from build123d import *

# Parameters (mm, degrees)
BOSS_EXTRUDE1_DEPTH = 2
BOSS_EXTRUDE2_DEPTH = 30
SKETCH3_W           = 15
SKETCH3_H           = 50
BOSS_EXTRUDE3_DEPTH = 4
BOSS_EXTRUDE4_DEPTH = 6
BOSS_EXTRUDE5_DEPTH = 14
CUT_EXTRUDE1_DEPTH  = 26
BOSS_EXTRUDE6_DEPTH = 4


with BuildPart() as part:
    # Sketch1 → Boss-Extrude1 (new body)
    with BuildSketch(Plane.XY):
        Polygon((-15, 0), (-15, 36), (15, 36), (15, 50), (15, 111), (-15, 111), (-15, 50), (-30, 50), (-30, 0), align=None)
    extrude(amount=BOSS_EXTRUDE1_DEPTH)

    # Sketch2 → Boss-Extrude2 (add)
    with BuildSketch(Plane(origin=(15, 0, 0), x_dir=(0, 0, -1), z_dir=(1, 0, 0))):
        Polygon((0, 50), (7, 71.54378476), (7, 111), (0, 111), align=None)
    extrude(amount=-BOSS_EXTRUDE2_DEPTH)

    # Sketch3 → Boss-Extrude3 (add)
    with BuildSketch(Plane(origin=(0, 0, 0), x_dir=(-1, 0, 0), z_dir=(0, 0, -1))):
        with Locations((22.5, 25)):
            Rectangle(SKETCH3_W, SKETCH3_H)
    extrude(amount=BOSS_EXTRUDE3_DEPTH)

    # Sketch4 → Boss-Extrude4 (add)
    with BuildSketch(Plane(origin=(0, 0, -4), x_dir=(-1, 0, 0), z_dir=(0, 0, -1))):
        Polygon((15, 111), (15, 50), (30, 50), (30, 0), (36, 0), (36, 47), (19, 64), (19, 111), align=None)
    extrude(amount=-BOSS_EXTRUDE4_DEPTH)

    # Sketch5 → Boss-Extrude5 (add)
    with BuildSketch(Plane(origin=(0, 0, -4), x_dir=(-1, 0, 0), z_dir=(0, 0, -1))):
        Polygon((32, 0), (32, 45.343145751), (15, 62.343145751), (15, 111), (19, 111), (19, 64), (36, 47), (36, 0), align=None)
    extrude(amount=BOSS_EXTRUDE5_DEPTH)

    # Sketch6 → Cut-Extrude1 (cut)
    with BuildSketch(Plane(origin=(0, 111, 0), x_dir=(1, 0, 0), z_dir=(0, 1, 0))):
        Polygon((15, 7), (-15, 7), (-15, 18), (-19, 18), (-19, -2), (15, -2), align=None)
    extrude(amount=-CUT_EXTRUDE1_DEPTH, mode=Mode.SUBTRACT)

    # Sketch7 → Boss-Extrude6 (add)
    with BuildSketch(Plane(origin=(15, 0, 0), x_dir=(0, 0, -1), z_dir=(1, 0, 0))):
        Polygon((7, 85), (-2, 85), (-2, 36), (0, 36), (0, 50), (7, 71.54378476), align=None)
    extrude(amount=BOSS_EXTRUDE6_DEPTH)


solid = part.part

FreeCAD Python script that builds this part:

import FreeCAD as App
import Part
import Sketcher
Q = App.Units.Quantity

doc = App.newDocument("Part")
body = doc.addObject("PartDesign::Body", "Body")

# Sketch on XY plane
sketch1 = doc.addObject("Sketcher::SketchObject", "Sketch")
body.addObject(sketch1)
sketch1.AttachmentSupport = (doc.XY_Plane, [""])
sketch1.MapMode = "FlatFace"
sketch1.addGeometry([
    Part.LineSegment(App.Vector(-15, 0, 0), App.Vector(-15, 36, 0)),  # 0
    Part.LineSegment(App.Vector(-15, 36, 0), App.Vector(15, 36, 0)),  # 1
    Part.LineSegment(App.Vector(15, 36, 0), App.Vector(15, 111, 0)),  # 2
    Part.LineSegment(App.Vector(15, 111, 0), App.Vector(-15, 111, 0)),  # 3
    Part.LineSegment(App.Vector(-15, 111, 0), App.Vector(-15, 50, 0)),  # 4
    Part.LineSegment(App.Vector(-15, 50, 0), App.Vector(-30, 50, 0)),  # 5
    Part.LineSegment(App.Vector(-30, 50, 0), App.Vector(-30, 0, 0)),  # 6
    Part.LineSegment(App.Vector(-30, 0, 0), App.Vector(-15, 0, 0)),  # 7
], False)
sketch1.addConstraint([
    Sketcher.Constraint("Coincident", 0, 2, 1, 1),
    Sketcher.Constraint("Coincident", 1, 2, 2, 1),
    Sketcher.Constraint("Coincident", 2, 2, 3, 1),
    Sketcher.Constraint("Coincident", 3, 2, 4, 1),
    Sketcher.Constraint("Coincident", 4, 2, 5, 1),
    Sketcher.Constraint("Coincident", 5, 2, 6, 1),
    Sketcher.Constraint("Coincident", 6, 2, 7, 1),
    Sketcher.Constraint("Coincident", 7, 2, 0, 1),
    Sketcher.Constraint("Vertical", 0),
    Sketcher.Constraint("Horizontal", 1),
    Sketcher.Constraint("Vertical", 2),
    Sketcher.Constraint("Horizontal", 3),
    Sketcher.Constraint("Vertical", 4),
    Sketcher.Constraint("Horizontal", 5),
    Sketcher.Constraint("Vertical", 6),
    Sketcher.Constraint("Horizontal", 7),
    Sketcher.Constraint("PointOnObject", 6, 2, -1),
    Sketcher.Constraint("Vertical", 0, 2, 3, 2),
    Sketcher.Constraint("DistanceX", 1, 1, 1, 2, Q("30 mm")),
    Sketcher.Constraint("DistanceX", 5, 2, 5, 1, Q("15 mm")),
    Sketcher.Constraint("DistanceY", 0, 1, 0, 2, Q("36 mm")),
    Sketcher.Constraint("DistanceY", 2, 1, 2, 2, Q("75 mm")),
    Sketcher.Constraint("DistanceY", 4, 2, 4, 1, Q("61 mm")),
    Sketcher.Constraint("DistanceX", 0, 2, -1, 1, Q("15 mm")),
])
pad1 = doc.addObject("PartDesign::Pad", "Pad")
body.addObject(pad1)
pad1.Profile = sketch1
pad1.Length = 2

# Sketch on YZ plane
sketch2 = doc.addObject("Sketcher::SketchObject", "Sketch001")
body.addObject(sketch2)
sketch2.AttachmentSupport = (doc.YZ_Plane, [""])
sketch2.MapMode = "FlatFace"
sketch2.AttachmentOffset = App.Placement(App.Vector(0, 0, 15), App.Rotation())
sketch2.addGeometry([
    Part.LineSegment(App.Vector(50, 0, 0), App.Vector(71.543785, -7, 0)),
    Part.LineSegment(App.Vector(71.543785, -7, 0), App.Vector(111, -7, 0)),
    Part.LineSegment(App.Vector(111, -7, 0), App.Vector(111, 0, 0)),
    Part.LineSegment(App.Vector(111, 0, 0), App.Vector(50, 0, 0)),
], False)
sketch2.addConstraint([
    Sketcher.Constraint("Coincident", 0, 2, 1, 1),
    Sketcher.Constraint("Coincident", 1, 2, 2, 1),
    Sketcher.Constraint("Coincident", 2, 2, 3, 1),
    Sketcher.Constraint("Coincident", 3, 2, 0, 1),
    Sketcher.Constraint("Horizontal", 1),
    Sketcher.Constraint("Vertical", 2),
    Sketcher.Constraint("Horizontal", 3),
    Sketcher.Constraint("PointOnObject", 2, 2, -1),
    Sketcher.Constraint("DistanceX", 3, 2, 3, 1, Q("61 mm")),
    Sketcher.Constraint("DistanceY", 2, 1, 2, 2, Q("7 mm")),
    Sketcher.Constraint("Angle", 0, Q("-18 deg")),
    Sketcher.Constraint("DistanceX", -1, 1, 1, 2, Q("111 mm")),
])
pad2 = doc.addObject("PartDesign::Pad", "Pad001")
body.addObject(pad2)
pad2.Profile = sketch2
pad2.Length = 30
pad2.Reversed = True

# Sketch on XY plane
sketch3 = doc.addObject("Sketcher::SketchObject", "Sketch002")
body.addObject(sketch3)
sketch3.AttachmentSupport = (doc.XY_Plane, [""])
sketch3.MapMode = "FlatFace"
sketch3.addGeometry([
    Part.LineSegment(App.Vector(-15, 50, 0), App.Vector(-15, 0, 0)),
    Part.LineSegment(App.Vector(-15, 0, 0), App.Vector(-30, 0, 0)),
    Part.LineSegment(App.Vector(-30, 0, 0), App.Vector(-30, 50, 0)),
    Part.LineSegment(App.Vector(-30, 50, 0), App.Vector(-15, 50, 0)),
], False)
sketch3.addConstraint([
    Sketcher.Constraint("Coincident", 0, 2, 1, 1),
    Sketcher.Constraint("Coincident", 1, 2, 2, 1),
    Sketcher.Constraint("Coincident", 2, 2, 3, 1),
    Sketcher.Constraint("Coincident", 3, 2, 0, 1),
    Sketcher.Constraint("Vertical", 0),
    Sketcher.Constraint("Horizontal", 1),
    Sketcher.Constraint("Vertical", 2),
    Sketcher.Constraint("Horizontal", 3),
    Sketcher.Constraint("PointOnObject", 0, 2, -1),
    Sketcher.Constraint("DistanceX", 1, 2, 1, 1, Q("15 mm")),
    Sketcher.Constraint("DistanceY", 0, 2, 0, 1, Q("50 mm")),
    Sketcher.Constraint("DistanceX", 0, 2, -1, 1, Q("15 mm")),
])
pad3 = doc.addObject("PartDesign::Pad", "Pad002")
body.addObject(pad3)
pad3.Profile = sketch3
pad3.Length = 4
pad3.Reversed = True

# Sketch on XY plane
sketch4 = doc.addObject("Sketcher::SketchObject", "Sketch003")
body.addObject(sketch4)
sketch4.AttachmentSupport = (doc.XY_Plane, [""])
sketch4.MapMode = "FlatFace"
sketch4.AttachmentOffset = App.Placement(App.Vector(0, 0, -4), App.Rotation())
sketch4.addGeometry([
    Part.LineSegment(App.Vector(-15, 111, 0), App.Vector(-15, 50, 0)),  # 0
    Part.LineSegment(App.Vector(-15, 50, 0), App.Vector(-30, 50, 0)),  # 1
    Part.LineSegment(App.Vector(-30, 50, 0), App.Vector(-30, 0, 0)),  # 2
    Part.LineSegment(App.Vector(-30, 0, 0), App.Vector(-36, 0, 0)),  # 3
    Part.LineSegment(App.Vector(-36, 0, 0), App.Vector(-36, 47, 0)),  # 4
    Part.LineSegment(App.Vector(-36, 47, 0), App.Vector(-19, 64, 0)),  # 5
    Part.LineSegment(App.Vector(-19, 64, 0), App.Vector(-19, 111, 0)),  # 6
    Part.LineSegment(App.Vector(-19, 111, 0), App.Vector(-15, 111, 0)),  # 7
], False)
sketch4.addConstraint([
    Sketcher.Constraint("Coincident", 0, 2, 1, 1),
    Sketcher.Constraint("Coincident", 1, 2, 2, 1),
    Sketcher.Constraint("Coincident", 2, 2, 3, 1),
    Sketcher.Constraint("Coincident", 3, 2, 4, 1),
    Sketcher.Constraint("Coincident", 4, 2, 5, 1),
    Sketcher.Constraint("Coincident", 5, 2, 6, 1),
    Sketcher.Constraint("Coincident", 6, 2, 7, 1),
    Sketcher.Constraint("Coincident", 7, 2, 0, 1),
    Sketcher.Constraint("Vertical", 0),
    Sketcher.Constraint("Horizontal", 1),
    Sketcher.Constraint("Vertical", 2),
    Sketcher.Constraint("Horizontal", 3),
    Sketcher.Constraint("Vertical", 4),
    Sketcher.Constraint("Vertical", 6),
    Sketcher.Constraint("Horizontal", 7),
    Sketcher.Constraint("PointOnObject", 2, 2, -1),
    Sketcher.Constraint("Equal", 4, 6),
    Sketcher.Constraint("DistanceX", 1, 2, 1, 1, Q("15 mm")),
    Sketcher.Constraint("DistanceX", 3, 2, 3, 1, Q("6 mm")),
    Sketcher.Constraint("DistanceX", 7, 1, 7, 2, Q("4 mm")),
    Sketcher.Constraint("DistanceY", 0, 2, 0, 1, Q("61 mm")),
    Sketcher.Constraint("DistanceY", 2, 2, 2, 1, Q("50 mm")),
    Sketcher.Constraint("DistanceY", 4, 1, 4, 2, Q("47 mm")),
    Sketcher.Constraint("DistanceX", 0, 2, -1, 1, Q("15 mm")),
])
pad4 = doc.addObject("PartDesign::Pad", "Pad003")
body.addObject(pad4)
pad4.Profile = sketch4
pad4.Length = 6

# Sketch on XY plane
sketch5 = doc.addObject("Sketcher::SketchObject", "Sketch004")
body.addObject(sketch5)
sketch5.AttachmentSupport = (doc.XY_Plane, [""])
sketch5.MapMode = "FlatFace"
sketch5.AttachmentOffset = App.Placement(App.Vector(0, 0, -4), App.Rotation())
sketch5.addGeometry([
    Part.LineSegment(App.Vector(-32, 45.343146, 0), App.Vector(-32, 0, 0)),  # 0
    Part.LineSegment(App.Vector(-32, 0, 0), App.Vector(-36, 0, 0)),  # 1
    Part.LineSegment(App.Vector(-36, 0, 0), App.Vector(-36, 47, 0)),  # 2
    Part.LineSegment(App.Vector(-36, 47, 0), App.Vector(-19, 64, 0)),  # 3
    Part.LineSegment(App.Vector(-19, 64, 0), App.Vector(-19, 111, 0)),  # 4
    Part.LineSegment(App.Vector(-19, 111, 0), App.Vector(-15, 111, 0)),  # 5
    Part.LineSegment(App.Vector(-15, 111, 0), App.Vector(-15, 62.343146, 0)),  # 6
    Part.LineSegment(App.Vector(-15, 62.343146, 0), App.Vector(-32, 45.343146, 0)),  # 7
], False)
sketch5.addConstraint([
    Sketcher.Constraint("Coincident", 0, 2, 1, 1),
    Sketcher.Constraint("Coincident", 1, 2, 2, 1),
    Sketcher.Constraint("Coincident", 2, 2, 3, 1),
    Sketcher.Constraint("Coincident", 3, 2, 4, 1),
    Sketcher.Constraint("Coincident", 4, 2, 5, 1),
    Sketcher.Constraint("Coincident", 5, 2, 6, 1),
    Sketcher.Constraint("Coincident", 6, 2, 7, 1),
    Sketcher.Constraint("Coincident", 7, 2, 0, 1),
    Sketcher.Constraint("Vertical", 0),
    Sketcher.Constraint("Horizontal", 1),
    Sketcher.Constraint("Vertical", 2),
    Sketcher.Constraint("Vertical", 4),
    Sketcher.Constraint("Horizontal", 5),
    Sketcher.Constraint("Vertical", 6),
    Sketcher.Constraint("PointOnObject", 0, 2, -1),
    Sketcher.Constraint("Parallel", 3, 7),
    Sketcher.Constraint("Equal", 1, 5),
    Sketcher.Constraint("Equal", 2, 4),
    Sketcher.Constraint("DistanceX", 1, 2, 1, 1, Q("4 mm")),
    Sketcher.Constraint("DistanceY", 2, 1, 2, 2, Q("47 mm")),
    Sketcher.Constraint("Angle", 3, Q("45 deg")),
    Sketcher.Constraint("DistanceX", 0, 2, -1, 1, Q("32 mm")),
    Sketcher.Constraint("DistanceX", 3, 2, -1, 1, Q("19 mm")),
    Sketcher.Constraint("DistanceY", 0, 2, 0, 1, Q("45.343146 mm")),
])
pad5 = doc.addObject("PartDesign::Pad", "Pad004")
body.addObject(pad5)
pad5.Profile = sketch5
pad5.Length = 14
pad5.Reversed = True

# Sketch on XZ plane
sketch6 = doc.addObject("Sketcher::SketchObject", "Sketch005")
body.addObject(sketch6)
sketch6.AttachmentSupport = (doc.XZ_Plane, [""])
sketch6.MapMode = "FlatFace"
sketch6.AttachmentOffset = App.Placement(App.Vector(0, 0, -111), App.Rotation())
sketch6.addGeometry([
    Part.LineSegment(App.Vector(15, -7, 0), App.Vector(-15, -7, 0)),  # 0
    Part.LineSegment(App.Vector(-15, -7, 0), App.Vector(-15, -18, 0)),  # 1
    Part.LineSegment(App.Vector(-15, -18, 0), App.Vector(-19, -18, 0)),  # 2
    Part.LineSegment(App.Vector(-19, -18, 0), App.Vector(-19, 2, 0)),  # 3
    Part.LineSegment(App.Vector(-19, 2, 0), App.Vector(15, 2, 0)),  # 4
    Part.LineSegment(App.Vector(15, 2, 0), App.Vector(15, -7, 0)),  # 5
], False)
sketch6.addConstraint([
    Sketcher.Constraint("Coincident", 0, 2, 1, 1),
    Sketcher.Constraint("Coincident", 1, 2, 2, 1),
    Sketcher.Constraint("Coincident", 2, 2, 3, 1),
    Sketcher.Constraint("Coincident", 3, 2, 4, 1),
    Sketcher.Constraint("Coincident", 4, 2, 5, 1),
    Sketcher.Constraint("Coincident", 5, 2, 0, 1),
    Sketcher.Constraint("Horizontal", 0),
    Sketcher.Constraint("Vertical", 1),
    Sketcher.Constraint("Horizontal", 2),
    Sketcher.Constraint("Vertical", 3),
    Sketcher.Constraint("Horizontal", 4),
    Sketcher.Constraint("Vertical", 5),
    Sketcher.Constraint("DistanceX", 0, 2, 0, 1, Q("30 mm")),
    Sketcher.Constraint("DistanceX", 2, 2, 2, 1, Q("4 mm")),
    Sketcher.Constraint("DistanceY", 1, 2, 1, 1, Q("11 mm")),
    Sketcher.Constraint("DistanceY", 3, 1, 3, 2, Q("20 mm")),
    Sketcher.Constraint("DistanceX", 0, 2, -1, 1, Q("15 mm")),
    Sketcher.Constraint("DistanceY", 0, 2, -1, 1, Q("7 mm")),
])
pocket1 = doc.addObject("PartDesign::Pocket", "Pocket")
body.addObject(pocket1)
pocket1.Profile = sketch6
pocket1.Length = 26
pocket1.Reversed = True

# Sketch on YZ plane
sketch7 = doc.addObject("Sketcher::SketchObject", "Sketch006")
body.addObject(sketch7)
sketch7.AttachmentSupport = (doc.YZ_Plane, [""])
sketch7.MapMode = "FlatFace"
sketch7.AttachmentOffset = App.Placement(App.Vector(0, 0, 15), App.Rotation())
sketch7.addGeometry([
    Part.LineSegment(App.Vector(85, -7, 0), App.Vector(85, 2, 0)),  # 0
    Part.LineSegment(App.Vector(85, 2, 0), App.Vector(36, 2, 0)),  # 1
    Part.LineSegment(App.Vector(36, 2, 0), App.Vector(36, 0, 0)),  # 2
    Part.LineSegment(App.Vector(36, 0, 0), App.Vector(50, 0, 0)),  # 3
    Part.LineSegment(App.Vector(50, 0, 0), App.Vector(71.543785, -7, 0)),  # 4
    Part.LineSegment(App.Vector(71.543785, -7, 0), App.Vector(85, -7, 0)),  # 5
], False)
sketch7.addConstraint([
    Sketcher.Constraint("Coincident", 0, 2, 1, 1),
    Sketcher.Constraint("Coincident", 1, 2, 2, 1),
    Sketcher.Constraint("Coincident", 2, 2, 3, 1),
    Sketcher.Constraint("Coincident", 3, 2, 4, 1),
    Sketcher.Constraint("Coincident", 4, 2, 5, 1),
    Sketcher.Constraint("Coincident", 5, 2, 0, 1),
    Sketcher.Constraint("Vertical", 0),
    Sketcher.Constraint("Horizontal", 1),
    Sketcher.Constraint("Vertical", 2),
    Sketcher.Constraint("Horizontal", 3),
    Sketcher.Constraint("Horizontal", 5),
    Sketcher.Constraint("PointOnObject", 2, 2, -1),
    Sketcher.Constraint("DistanceX", 1, 2, 1, 1, Q("49 mm")),
    Sketcher.Constraint("DistanceX", 3, 1, 3, 2, Q("14 mm")),
    Sketcher.Constraint("DistanceY", 0, 1, 0, 2, Q("9 mm")),
    Sketcher.Constraint("DistanceY", 2, 2, 2, 1, Q("2 mm")),
    Sketcher.Constraint("Angle", 4, Q("-18 deg")),
    Sketcher.Constraint("DistanceX", -1, 1, 0, 2, Q("85 mm")),
])
pad6 = doc.addObject("PartDesign::Pad", "Pad005")
body.addObject(pad6)
pad6.Profile = sketch7
pad6.Length = 4

doc.recompute()
